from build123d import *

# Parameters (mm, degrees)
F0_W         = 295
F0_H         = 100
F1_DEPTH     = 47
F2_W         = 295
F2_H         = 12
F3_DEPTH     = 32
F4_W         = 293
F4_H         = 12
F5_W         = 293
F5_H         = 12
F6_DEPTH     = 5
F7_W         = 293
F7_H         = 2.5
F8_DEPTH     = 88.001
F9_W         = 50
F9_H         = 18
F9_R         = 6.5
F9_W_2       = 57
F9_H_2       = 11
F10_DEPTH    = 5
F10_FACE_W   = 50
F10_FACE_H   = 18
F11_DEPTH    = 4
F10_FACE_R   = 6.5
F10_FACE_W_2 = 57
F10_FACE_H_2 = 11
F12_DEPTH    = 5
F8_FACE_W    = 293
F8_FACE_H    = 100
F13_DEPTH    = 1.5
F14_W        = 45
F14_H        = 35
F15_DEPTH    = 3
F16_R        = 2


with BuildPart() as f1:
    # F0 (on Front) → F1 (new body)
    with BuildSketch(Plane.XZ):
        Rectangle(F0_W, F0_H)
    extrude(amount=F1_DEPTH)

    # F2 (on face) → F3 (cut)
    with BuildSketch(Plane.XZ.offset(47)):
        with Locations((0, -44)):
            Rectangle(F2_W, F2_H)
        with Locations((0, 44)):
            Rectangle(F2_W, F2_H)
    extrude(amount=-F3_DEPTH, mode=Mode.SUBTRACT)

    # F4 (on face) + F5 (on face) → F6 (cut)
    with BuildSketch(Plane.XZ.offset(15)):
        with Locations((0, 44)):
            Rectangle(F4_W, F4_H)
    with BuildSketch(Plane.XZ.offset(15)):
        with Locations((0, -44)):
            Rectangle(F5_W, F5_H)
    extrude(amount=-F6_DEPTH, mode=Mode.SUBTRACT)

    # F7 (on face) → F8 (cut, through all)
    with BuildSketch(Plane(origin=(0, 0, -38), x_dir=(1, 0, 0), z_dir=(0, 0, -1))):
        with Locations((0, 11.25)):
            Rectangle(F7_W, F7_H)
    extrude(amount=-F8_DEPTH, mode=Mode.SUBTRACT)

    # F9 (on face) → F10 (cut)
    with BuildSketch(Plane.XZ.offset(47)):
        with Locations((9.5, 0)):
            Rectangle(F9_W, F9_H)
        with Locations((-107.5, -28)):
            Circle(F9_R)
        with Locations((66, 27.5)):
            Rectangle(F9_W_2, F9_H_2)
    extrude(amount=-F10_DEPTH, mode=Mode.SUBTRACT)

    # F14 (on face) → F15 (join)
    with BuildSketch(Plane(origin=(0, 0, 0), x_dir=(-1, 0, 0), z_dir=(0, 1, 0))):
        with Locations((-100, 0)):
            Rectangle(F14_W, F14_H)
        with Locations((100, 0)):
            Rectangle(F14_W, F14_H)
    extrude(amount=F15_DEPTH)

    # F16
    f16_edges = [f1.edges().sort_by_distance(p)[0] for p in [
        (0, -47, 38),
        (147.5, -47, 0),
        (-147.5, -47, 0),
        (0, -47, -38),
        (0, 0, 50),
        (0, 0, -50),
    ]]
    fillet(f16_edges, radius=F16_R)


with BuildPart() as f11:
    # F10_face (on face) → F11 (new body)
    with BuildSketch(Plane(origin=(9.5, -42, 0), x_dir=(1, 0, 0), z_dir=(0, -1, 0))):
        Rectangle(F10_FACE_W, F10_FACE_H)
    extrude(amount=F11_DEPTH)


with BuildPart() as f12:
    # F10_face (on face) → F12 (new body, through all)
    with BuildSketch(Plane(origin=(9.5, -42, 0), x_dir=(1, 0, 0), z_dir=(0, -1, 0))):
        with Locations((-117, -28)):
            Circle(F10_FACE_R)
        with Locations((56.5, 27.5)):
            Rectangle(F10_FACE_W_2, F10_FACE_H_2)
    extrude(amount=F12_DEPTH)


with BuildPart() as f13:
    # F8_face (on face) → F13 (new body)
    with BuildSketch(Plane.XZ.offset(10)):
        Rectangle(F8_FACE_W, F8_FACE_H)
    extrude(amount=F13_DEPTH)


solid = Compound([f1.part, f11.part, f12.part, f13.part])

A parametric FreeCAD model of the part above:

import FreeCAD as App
import Part
import Sketcher
from FreeCAD import Vector
Q = App.Units.Quantity


def edges_at(feature, points):
    """Names of the edges that pass closest to the given points."""
    edges = feature.Shape.Edges
    near = lambda p: min(range(len(edges)), key=lambda i: edges[i].distToShape(Part.Vertex(*p))[0])
    return sorted({f"Edge{near(p) + 1}" for p in points})

doc = App.newDocument("Part")
params = doc.addObject("Spreadsheet::Sheet", "Params")
for row, (alias, value) in enumerate([
    ("sketch1_width", "295 mm"),
    ("sketch1_height", "100 mm"),
    ("pad1_length", "47 mm"),
    ("sketch2_width", "295 mm"),
    ("sketch2_height", "12 mm"),
    ("pocket1_length", "32 mm"),
    ("sketch3_width", "293 mm"),
    ("sketch3_height", "12 mm"),
    ("pocket2_length", "5 mm"),
    ("sketch4_width", "293 mm"),
    ("sketch4_height", "2.5 mm"),
    ("sketch5_diameter", "13 mm"),
    ("sketch5_width", "50 mm"),
    ("sketch5_width2", "57 mm"),
    ("sketch5_height", "18 mm"),
    ("sketch5_height2", "11 mm"),
    ("pocket4_length", "5 mm"),
    ("sketch6_width", "45 mm"),
    ("sketch6_height", "35 mm"),
    ("pad2_length", "3 mm"),
    ("fillet_radius", "2 mm"),
    ("sketch7_width", "50 mm"),
    ("sketch7_height", "18 mm"),
    ("pad3_length", "4 mm"),
    ("sketch8_diameter", "13 mm"),
    ("sketch8_width", "57 mm"),
    ("sketch8_height", "11 mm"),
    ("pad4_length", "5 mm"),
    ("sketch9_width", "293 mm"),
    ("sketch9_height", "100 mm"),
    ("pad5_length", "1.5 mm"),
], start=1):
    params.set(f"A{row}", alias)
    params.set(f"B{row}", "=" + value)
    params.setAlias(f"B{row}", alias)

body = doc.addObject("PartDesign::Body", "Body")

# Sketch on XZ plane
sketch1 = body.newObject("Sketcher::SketchObject", "Sketch")
sketch1.AttachmentSupport = (doc.getObject("XZ_Plane"), [""])
sketch1.MapMode = "FlatFace"
sketch1.addGeometry([
    Part.LineSegment(Vector(-148, 50, 0), Vector(-148, -50, 0)),
    Part.LineSegment(Vector(-148, -50, 0), Vector(148, -50, 0)),
    Part.LineSegment(Vector(148, -50, 0), Vector(148, 50, 0)),
    Part.LineSegment(Vector(148, 50, 0), Vector(-148, 50, 0)),
], False)
sketch1.addConstraint([
    Sketcher.Constraint("Coincident", 0, 2, 1, 1),
    Sketcher.Constraint("Coincident", 1, 2, 2, 1),
    Sketcher.Constraint("Coincident", 2, 2, 3, 1),
    Sketcher.Constraint("Coincident", 3, 2, 0, 1),
    Sketcher.Constraint("Vertical", 0),
    Sketcher.Constraint("Horizontal", 1),
    Sketcher.Constraint("Vertical", 2),
    Sketcher.Constraint("Horizontal", 3),
    Sketcher.Constraint("Symmetric", 0, 2, 2, 2, -1, 1),
    Sketcher.Constraint("DistanceX", 1, 1, 1, 2, Q("295 mm")),
    Sketcher.Constraint("DistanceY", 0, 2, 0, 1, Q("100 mm")),
])
sketch1.setExpression("Constraints[9]", "Params.sketch1_width")
sketch1.setExpression("Constraints[10]", "Params.sketch1_height")
pad1 = body.newObject("PartDesign::Pad", "Pad")
pad1.Profile = sketch1
pad1.setExpression("Length", "Params.pad1_length")

# Sketch on XZ plane
sketch2 = body.newObject("Sketcher::SketchObject", "Sketch001")
sketch2.AttachmentSupport = (doc.getObject("XZ_Plane"), [""])
sketch2.MapMode = "FlatFace"
sketch2.AttachmentOffset = App.Placement(Vector(0, 0, 47), App.Rotation())
sketch2.addGeometry([
    Part.LineSegment(Vector(-148, -38, 0), Vector(-148, -50, 0)),  # 0
    Part.LineSegment(Vector(-148, -50, 0), Vector(148, -50, 0)),  # 1
    Part.LineSegment(Vector(148, -50, 0), Vector(148, -38, 0)),  # 2
    Part.LineSegment(Vector(148, -38, 0), Vector(-148, -38, 0)),  # 3
    Part.LineSegment(Vector(-148, 50, 0), Vector(-148, 38, 0)),  # 4
    Part.LineSegment(Vector(-148, 38, 0), Vector(148, 38, 0)),  # 5
    Part.LineSegment(Vector(148, 38, 0), Vector(148, 50, 0)),  # 6
    Part.LineSegment(Vector(148, 50, 0), Vector(-148, 50, 0)),  # 7
], False)
sketch2.addConstraint([
    Sketcher.Constraint("Coincident", 0, 2, 1, 1),
    Sketcher.Constraint("Coincident", 1, 2, 2, 1),
    Sketcher.Constraint("Coincident", 2, 2, 3, 1),
    Sketcher.Constraint("Coincident", 3, 2, 0, 1),
    Sketcher.Constraint("Coincident", 4, 2, 5, 1),
    Sketcher.Constraint("Coincident", 5, 2, 6, 1),
    Sketcher.Constraint("Coincident", 6, 2, 7, 1),
    Sketcher.Constraint("Coincident", 7, 2, 4, 1),
    Sketcher.Constraint("Vertical", 0),
    Sketcher.Constraint("Horizontal", 1),
    Sketcher.Constraint("Vertical", 2),
    Sketcher.Constraint("Horizontal", 3),
    Sketcher.Constraint("Vertical", 4),
    Sketcher.Constraint("Horizontal", 5),
    Sketcher.Constraint("Vertical", 6),
    Sketcher.Constraint("Horizontal", 7),
    Sketcher.Constraint("Symmetric", 2, 2, 4, 2, -1, 1),
    Sketcher.Constraint("Symmetric", 0, 2, 6, 2, -1, 1),
    Sketcher.Constraint("Vertical", 3, 2, 4, 2),
    Sketcher.Constraint("DistanceX", 1, 1, 1, 2, Q("295 mm")),
    Sketcher.Constraint("DistanceY", 0, 2, 0, 1, Q("12 mm")),
    Sketcher.Constraint("DistanceY", 0, 2, -1, 1, Q("50 mm")),
])
sketch2.setExpression("Constraints[19]", "Params.sketch2_width")
sketch2.setExpression("Constraints[20]", "Params.sketch2_height")
pocket1 = body.newObject("PartDesign::Pocket", "Pocket")
pocket1.Profile = sketch2
pocket1.setExpression("Length", "Params.pocket1_length")

# Sketch on XZ plane
sketch3 = body.newObject("Sketcher::SketchObject", "Sketch002")
sketch3.AttachmentSupport = (doc.getObject("XZ_Plane"), [""])
sketch3.MapMode = "FlatFace"
sketch3.AttachmentOffset = App.Placement(Vector(0, 0, 15), App.Rotation())
sketch3.addGeometry([
    Part.LineSegment(Vector(-146, 50, 0), Vector(-146, 38, 0)),  # 0
    Part.LineSegment(Vector(-146, 38, 0), Vector(146, 38, 0)),  # 1
    Part.LineSegment(Vector(146, 38, 0), Vector(146, 50, 0)),  # 2
    Part.LineSegment(Vector(146, 50, 0), Vector(-146, 50, 0)),  # 3
    Part.LineSegment(Vector(-146, -38, 0), Vector(-146, -50, 0)),  # 4
    Part.LineSegment(Vector(-146, -50, 0), Vector(146, -50, 0)),  # 5
    Part.LineSegment(Vector(146, -50, 0), Vector(146, -38, 0)),  # 6
    Part.LineSegment(Vector(146, -38, 0), Vector(-146, -38, 0)),  # 7
], False)
sketch3.addConstraint([
    Sketcher.Constraint("Coincident", 0, 2, 1, 1),
    Sketcher.Constraint("Coincident", 1, 2, 2, 1),
    Sketcher.Constraint("Coincident", 2, 2, 3, 1),
    Sketcher.Constraint("Coincident", 3, 2, 0, 1),
    Sketcher.Constraint("Coincident", 4, 2, 5, 1),
    Sketcher.Constraint("Coincident", 5, 2, 6, 1),
    Sketcher.Constraint("Coincident", 6, 2, 7, 1),
    Sketcher.Constraint("Coincident", 7, 2, 4, 1),
    Sketcher.Constraint("Vertical", 0),
    Sketcher.Constraint("Horizontal", 1),
    Sketcher.Constraint("Vertical", 2),
    Sketcher.Constraint("Horizontal", 3),
    Sketcher.Constraint("Vertical", 4),
    Sketcher.Constraint("Horizontal", 5),
    Sketcher.Constraint("Vertical", 6),
    Sketcher.Constraint("Horizontal", 7),
    Sketcher.Constraint("Symmetric", 2, 2, 4, 2, -1, 1),
    Sketcher.Constraint("Symmetric", 0, 2, 6, 2, -1, 1),
    Sketcher.Constraint("Vertical", 3, 2, 4, 2),
    Sketcher.Constraint("DistanceX", 1, 1, 1, 2, Q("293 mm")),
    Sketcher.Constraint("DistanceY", 0, 2, 0, 1, Q("12 mm")),
    Sketcher.Constraint("DistanceY", -1, 1, 0, 2, Q("38 mm")),
])
sketch3.setExpression("Constraints[19]", "Params.sketch3_width")
sketch3.setExpression("Constraints[20]", "Params.sketch3_height")
pocket2 = body.newObject("PartDesign::Pocket", "Pocket001")
pocket2.Profile = sketch3
pocket2.setExpression("Length", "Params.pocket2_length")

# Sketch on XY plane
sketch4 = body.newObject("Sketcher::SketchObject", "Sketch003")
sketch4.AttachmentSupport = (doc.getObject("XY_Plane"), [""])
sketch4.MapMode = "FlatFace"
sketch4.AttachmentOffset = App.Placement(Vector(0, 0, -38), App.Rotation())
sketch4.addGeometry([
    Part.LineSegment(Vector(-146.5, -12.5, 0), Vector(-146.5, -10, 0)),
    Part.LineSegment(Vector(-146.5, -10, 0), Vector(146.5, -10, 0)),
    Part.LineSegment(Vector(146.5, -10, 0), Vector(146.5, -12.5, 0)),
    Part.LineSegment(Vector(146.5, -12.5, 0), Vector(-146.5, -12.5, 0)),
], False)
sketch4.addConstraint([
    Sketcher.Constraint("Coincident", 0, 2, 1, 1),
    Sketcher.Constraint("Coincident", 1, 2, 2, 1),
    Sketcher.Constraint("Coincident", 2, 2, 3, 1),
    Sketcher.Constraint("Coincident", 3, 2, 0, 1),
    Sketcher.Constraint("Vertical", 0),
    Sketcher.Constraint("Horizontal", 1),
    Sketcher.Constraint("Vertical", 2),
    Sketcher.Constraint("Horizontal", 3),
    Sketcher.Constraint("DistanceX", 1, 1, 1, 2, Q("293 mm")),
    Sketcher.Constraint("DistanceY", 0, 1, 0, 2, Q("2.5 mm")),
    Sketcher.Constraint("DistanceY", 0, 2, -1, 1, Q("10 mm")),
    Sketcher.Constraint("DistanceX", 0, 2, -1, 1, Q("146.5 mm")),
])
sketch4.setExpression("Constraints[8]", "Params.sketch4_width")
sketch4.setExpression("Constraints[9]", "Params.sketch4_height")
pocket3 = body.newObject("PartDesign::Pocket", "Pocket002")
pocket3.Profile = sketch4
pocket3.Type = "ThroughAll"
pocket3.Reversed = True

# Sketch on XZ plane
sketch5 = body.newObject("Sketcher::SketchObject", "Sketch004")
sketch5.AttachmentSupport = (doc.getObject("XZ_Plane"), [""])
sketch5.MapMode = "FlatFace"
sketch5.AttachmentOffset = App.Placement(Vector(0, 0, 47), App.Rotation())
sketch5.addGeometry([
    Part.LineSegment(Vector(-16, 9, 0), Vector(-16, -9, 0)),  # 0
    Part.LineSegment(Vector(-16, -9, 0), Vector(34, -9, 0)),  # 1
    Part.LineSegment(Vector(34, -9, 0), Vector(34, 9, 0)),  # 2
    Part.LineSegment(Vector(34, 9, 0), Vector(-16, 9, 0)),  # 3
    Part.Circle(Vector(-108, -28, 0), Vector(0, 0, 1), 6),  # 4
    Part.LineSegment(Vector(38, 33, 0), Vector(38, 22, 0)),  # 5
    Part.LineSegment(Vector(38, 22, 0), Vector(94, 22, 0)),  # 6
    Part.LineSegment(Vector(94, 22, 0), Vector(94, 33, 0)),  # 7
    Part.LineSegment(Vector(94, 33, 0), Vector(38, 33, 0)),  # 8
], False)
sketch5.addConstraint([
    Sketcher.Constraint("Coincident", 0, 2, 1, 1),
    Sketcher.Constraint("Coincident", 1, 2, 2, 1),
    Sketcher.Constraint("Coincident", 2, 2, 3, 1),
    Sketcher.Constraint("Coincident", 3, 2, 0, 1),
    Sketcher.Constraint("Coincident", 5, 2, 6, 1),
    Sketcher.Constraint("Coincident", 6, 2, 7, 1),
    Sketcher.Constraint("Coincident", 7, 2, 8, 1),
    Sketcher.Constraint("Coincident", 8, 2, 5, 1),
    Sketcher.Constraint("Vertical", 0),
    Sketcher.Constraint("Horizontal", 1),
    Sketcher.Constraint("Vertical", 2),
    Sketcher.Constraint("Horizontal", 3),
    Sketcher.Constraint("Vertical", 5),
    Sketcher.Constraint("Horizontal", 6),
    Sketcher.Constraint("Vertical", 7),
    Sketcher.Constraint("Horizontal", 8),
    Sketcher.Constraint("Diameter", 4, Q("13 mm")),
    Sketcher.Constraint("DistanceX", 1, 1, 1, 2, Q("50 mm")),
    Sketcher.Constraint("DistanceX", 6, 1, 6, 2, Q("57 mm")),
    Sketcher.Constraint("DistanceY", 0, 2, 0, 1, Q("18 mm")),
    Sketcher.Constraint("DistanceY", 5, 2, 5, 1, Q("11 mm")),
    Sketcher.Constraint("DistanceY", 4, 3, -1, 1, Q("28 mm")),
    Sketcher.Constraint("DistanceY", 0, 2, -1, 1, Q("9 mm")),
    Sketcher.Constraint("DistanceY", -1, 1, 5, 2, Q("22 mm")),
    Sketcher.Constraint("DistanceX", 4, 3, 0, 2, Q("92 mm")),
    Sketcher.Constraint("DistanceX", 2, 2, 5, 2, Q("3 mm")),
    Sketcher.Constraint("DistanceX", 4, 3, -1, 1, Q("107.5 mm")),
])
sketch5.setExpression("Constraints[16]", "Params.sketch5_diameter")
sketch5.setExpression("Constraints[17]", "Params.sketch5_width")
sketch5.setExpression("Constraints[18]", "Params.sketch5_width2")
sketch5.setExpression("Constraints[19]", "Params.sketch5_height")
sketch5.setExpression("Constraints[20]", "Params.sketch5_height2")
pocket4 = body.newObject("PartDesign::Pocket", "Pocket003")
pocket4.Profile = sketch5
pocket4.setExpression("Length", "Params.pocket4_length")

# Sketch on XZ plane
sketch6 = body.newObject("Sketcher::SketchObject", "Sketch005")
sketch6.AttachmentSupport = (doc.getObject("XZ_Plane"), [""])
sketch6.MapMode = "FlatFace"
sketch6.addGeometry([
    Part.LineSegment(Vector(122, 18, 0), Vector(122, -18, 0)),  # 0
    Part.LineSegment(Vector(122, -18, 0), Vector(78, -18, 0)),  # 1
    Part.LineSegment(Vector(78, -18, 0), Vector(78, 18, 0)),  # 2
    Part.LineSegment(Vector(78, 18, 0), Vector(122, 18, 0)),  # 3
    Part.LineSegment(Vector(-78, 18, 0), Vector(-78, -18, 0)),  # 4
    Part.LineSegment(Vector(-78, -18, 0), Vector(-122, -18, 0)),  # 5
    Part.LineSegment(Vector(-122, -18, 0), Vector(-122, 18, 0)),  # 6
    Part.LineSegment(Vector(-122, 18, 0), Vector(-78, 18, 0)),  # 7
], False)
sketch6.addConstraint([
    Sketcher.Constraint("Coincident", 0, 2, 1, 1),
    Sketcher.Constraint("Coincident", 1, 2, 2, 1),
    Sketcher.Constraint("Coincident", 2, 2, 3, 1),
    Sketcher.Constraint("Coincident", 3, 2, 0, 1),
    Sketcher.Constraint("Coincident", 4, 2, 5, 1),
    Sketcher.Constraint("Coincident", 5, 2, 6, 1),
    Sketcher.Constraint("Coincident", 6, 2, 7, 1),
    Sketcher.Constraint("Coincident", 7, 2, 4, 1),
    Sketcher.Constraint("Vertical", 0),
    Sketcher.Constraint("Horizontal", 1),
    Sketcher.Constraint("Vertical", 2),
    Sketcher.Constraint("Horizontal", 3),
    Sketcher.Constraint("Vertical", 4),
    Sketcher.Constraint("Horizontal", 5),
    Sketcher.Constraint("Vertical", 6),
    Sketcher.Constraint("Horizontal", 7),
    Sketcher.Constraint("Symmetric", 2, 2, 4, 2, -1, 1),
    Sketcher.Constraint("Symmetric", 0, 2, 6, 2, -1, 1),
    Sketcher.Constraint("Horizontal", 1, 2, 4, 2),
    Sketcher.Constraint("DistanceX", 1, 2, 1, 1, Q("45 mm")),
    Sketcher.Constraint("DistanceY", 0, 2, 0, 1, Q("35 mm")),
    Sketcher.Constraint("DistanceX", 4, 2, 1, 2, Q("155 mm")),
])
sketch6.setExpression("Constraints[19]", "Params.sketch6_width")
sketch6.setExpression("Constraints[20]", "Params.sketch6_height")
pad2 = body.newObject("PartDesign::Pad", "Pad001")
pad2.Profile = sketch6
pad2.setExpression("Length", "Params.pad2_length")
pad2.Reversed = True
doc.recompute()

fillet = body.newObject("PartDesign::Fillet", "Fillet")
fillet.Base = (pad2, edges_at(pad2, [
    (0, -47, 38),
    (147.5, -47, 0),
    (-147.5, -47, 0),
    (0, -47, -38),
    (0, 0, 50),
    (0, 0, -50),
]))
fillet.setExpression("Radius", "Params.fillet_radius")
body2 = doc.addObject("PartDesign::Body", "Body001")

# Sketch on XZ plane
sketch7 = body2.newObject("Sketcher::SketchObject", "Sketch006")
sketch7.AttachmentSupport = (doc.getObject("XZ_Plane001"), [""])
sketch7.MapMode = "FlatFace"
sketch7.AttachmentOffset = App.Placement(Vector(0, 0, 42), App.Rotation())
sketch7.addGeometry([
    Part.LineSegment(Vector(-16, 9, 0), Vector(-16, -9, 0)),
    Part.LineSegment(Vector(-16, -9, 0), Vector(34, -9, 0)),
    Part.LineSegment(Vector(34, -9, 0), Vector(34, 9, 0)),
    Part.LineSegment(Vector(34, 9, 0), Vector(-16, 9, 0)),
], False)
sketch7.addConstraint([
    Sketcher.Constraint("Coincident", 0, 2, 1, 1),
    Sketcher.Constraint("Coincident", 1, 2, 2, 1),
    Sketcher.Constraint("Coincident", 2, 2, 3, 1),
    Sketcher.Constraint("Coincident", 3, 2, 0, 1),
    Sketcher.Constraint("Vertical", 0),
    Sketcher.Constraint("Horizontal", 1),
    Sketcher.Constraint("Vertical", 2),
    Sketcher.Constraint("Horizontal", 3),
    Sketcher.Constraint("DistanceX", 1, 1, 1, 2, Q("50 mm")),
    Sketcher.Constraint("DistanceY", 0, 2, 0, 1, Q("18 mm")),
    Sketcher.Constraint("DistanceY", 0, 2, -1, 1, Q("9 mm")),
    Sketcher.Constraint("DistanceX", 0, 2, -1, 1, Q("15.5 mm")),
])
sketch7.setExpression("Constraints[8]", "Params.sketch7_width")
sketch7.setExpression("Constraints[9]", "Params.sketch7_height")
pad3 = body2.newObject("PartDesign::Pad", "Pad002")
pad3.Profile = sketch7
pad3.setExpression("Length", "Params.pad3_length")
body3 = doc.addObject("PartDesign::Body", "Body002")
body3.AllowCompound = True

# Sketch on XZ plane
sketch8 = body3.newObject("Sketcher::SketchObject", "Sketch007")
sketch8.AttachmentSupport = (doc.getObject("XZ_Plane002"), [""])
sketch8.MapMode = "FlatFace"
sketch8.AttachmentOffset = App.Placement(Vector(0, 0, 42), App.Rotation())
sketch8.addGeometry([
    Part.Circle(Vector(-108, -28, 0), Vector(0, 0, 1), 6),  # 0
    Part.LineSegment(Vector(38, 33, 0), Vector(38, 22, 0)),  # 1
    Part.LineSegment(Vector(38, 22, 0), Vector(94, 22, 0)),  # 2
    Part.LineSegment(Vector(94, 22, 0), Vector(94, 33, 0)),  # 3
    Part.LineSegment(Vector(94, 33, 0), Vector(38, 33, 0)),  # 4
], False)
sketch8.addConstraint([
    Sketcher.Constraint("Coincident", 1, 2, 2, 1),
    Sketcher.Constraint("Coincident", 2, 2, 3, 1),
    Sketcher.Constraint("Coincident", 3, 2, 4, 1),
    Sketcher.Constraint("Coincident", 4, 2, 1, 1),
    Sketcher.Constraint("Vertical", 1),
    Sketcher.Constraint("Horizontal", 2),
    Sketcher.Constraint("Vertical", 3),
    Sketcher.Constraint("Horizontal", 4),
    Sketcher.Constraint("Diameter", 0, Q("13 mm")),
    Sketcher.Constraint("DistanceX", 2, 1, 2, 2, Q("57 mm")),
    Sketcher.Constraint("DistanceY", 1, 2, 1, 1, Q("11 mm")),
    Sketcher.Constraint("DistanceY", 0, 3, -1, 1, Q("28 mm")),
    Sketcher.Constraint("DistanceY", -1, 1, 1, 2, Q("22 mm")),
    Sketcher.Constraint("DistanceX", 0, 3, 1, 2, Q("145 mm")),
    Sketcher.Constraint("DistanceX", 0, 3, -1, 1, Q("107.5 mm")),
])
sketch8.setExpression("Constraints[8]", "Params.sketch8_diameter")
sketch8.setExpression("Constraints[9]", "Params.sketch8_width")
sketch8.setExpression("Constraints[10]", "Params.sketch8_height")
pad4 = body3.newObject("PartDesign::Pad", "Pad003")
pad4.Profile = sketch8
pad4.setExpression("Length", "Params.pad4_length")
body4 = doc.addObject("PartDesign::Body", "Body003")

# Sketch on XZ plane
sketch9 = body4.newObject("Sketcher::SketchObject", "Sketch008")
sketch9.AttachmentSupport = (doc.getObject("XZ_Plane003"), [""])
sketch9.MapMode = "FlatFace"
sketch9.AttachmentOffset = App.Placement(Vector(0, 0, 10), App.Rotation())
sketch9.addGeometry([
    Part.LineSegment(Vector(-146, 50, 0), Vector(-146, -50, 0)),
    Part.LineSegment(Vector(-146, -50, 0), Vector(146, -50, 0)),
    Part.LineSegment(Vector(146, -50, 0), Vector(146, 50, 0)),
    Part.LineSegment(Vector(146, 50, 0), Vector(-146, 50, 0)),
], False)
sketch9.addConstraint([
    Sketcher.Constraint("Coincident", 0, 2, 1, 1),
    Sketcher.Constraint("Coincident", 1, 2, 2, 1),
    Sketcher.Constraint("Coincident", 2, 2, 3, 1),
    Sketcher.Constraint("Coincident", 3, 2, 0, 1),
    Sketcher.Constraint("Vertical", 0),
    Sketcher.Constraint("Horizontal", 1),
    Sketcher.Constraint("Vertical", 2),
    Sketcher.Constraint("Horizontal", 3),
    Sketcher.Constraint("Symmetric", 0, 2, 2, 2, -1, 1),
    Sketcher.Constraint("DistanceX", 1, 1, 1, 2, Q("293 mm")),
    Sketcher.Constraint("DistanceY", 0, 2, 0, 1, Q("100 mm")),
])
sketch9.setExpression("Constraints[9]", "Params.sketch9_width")
sketch9.setExpression("Constraints[10]", "Params.sketch9_height")
pad5 = body4.newObject("PartDesign::Pad", "Pad004")
pad5.Profile = sketch9
pad5.setExpression("Length", "Params.pad5_length")

doc.recompute()
